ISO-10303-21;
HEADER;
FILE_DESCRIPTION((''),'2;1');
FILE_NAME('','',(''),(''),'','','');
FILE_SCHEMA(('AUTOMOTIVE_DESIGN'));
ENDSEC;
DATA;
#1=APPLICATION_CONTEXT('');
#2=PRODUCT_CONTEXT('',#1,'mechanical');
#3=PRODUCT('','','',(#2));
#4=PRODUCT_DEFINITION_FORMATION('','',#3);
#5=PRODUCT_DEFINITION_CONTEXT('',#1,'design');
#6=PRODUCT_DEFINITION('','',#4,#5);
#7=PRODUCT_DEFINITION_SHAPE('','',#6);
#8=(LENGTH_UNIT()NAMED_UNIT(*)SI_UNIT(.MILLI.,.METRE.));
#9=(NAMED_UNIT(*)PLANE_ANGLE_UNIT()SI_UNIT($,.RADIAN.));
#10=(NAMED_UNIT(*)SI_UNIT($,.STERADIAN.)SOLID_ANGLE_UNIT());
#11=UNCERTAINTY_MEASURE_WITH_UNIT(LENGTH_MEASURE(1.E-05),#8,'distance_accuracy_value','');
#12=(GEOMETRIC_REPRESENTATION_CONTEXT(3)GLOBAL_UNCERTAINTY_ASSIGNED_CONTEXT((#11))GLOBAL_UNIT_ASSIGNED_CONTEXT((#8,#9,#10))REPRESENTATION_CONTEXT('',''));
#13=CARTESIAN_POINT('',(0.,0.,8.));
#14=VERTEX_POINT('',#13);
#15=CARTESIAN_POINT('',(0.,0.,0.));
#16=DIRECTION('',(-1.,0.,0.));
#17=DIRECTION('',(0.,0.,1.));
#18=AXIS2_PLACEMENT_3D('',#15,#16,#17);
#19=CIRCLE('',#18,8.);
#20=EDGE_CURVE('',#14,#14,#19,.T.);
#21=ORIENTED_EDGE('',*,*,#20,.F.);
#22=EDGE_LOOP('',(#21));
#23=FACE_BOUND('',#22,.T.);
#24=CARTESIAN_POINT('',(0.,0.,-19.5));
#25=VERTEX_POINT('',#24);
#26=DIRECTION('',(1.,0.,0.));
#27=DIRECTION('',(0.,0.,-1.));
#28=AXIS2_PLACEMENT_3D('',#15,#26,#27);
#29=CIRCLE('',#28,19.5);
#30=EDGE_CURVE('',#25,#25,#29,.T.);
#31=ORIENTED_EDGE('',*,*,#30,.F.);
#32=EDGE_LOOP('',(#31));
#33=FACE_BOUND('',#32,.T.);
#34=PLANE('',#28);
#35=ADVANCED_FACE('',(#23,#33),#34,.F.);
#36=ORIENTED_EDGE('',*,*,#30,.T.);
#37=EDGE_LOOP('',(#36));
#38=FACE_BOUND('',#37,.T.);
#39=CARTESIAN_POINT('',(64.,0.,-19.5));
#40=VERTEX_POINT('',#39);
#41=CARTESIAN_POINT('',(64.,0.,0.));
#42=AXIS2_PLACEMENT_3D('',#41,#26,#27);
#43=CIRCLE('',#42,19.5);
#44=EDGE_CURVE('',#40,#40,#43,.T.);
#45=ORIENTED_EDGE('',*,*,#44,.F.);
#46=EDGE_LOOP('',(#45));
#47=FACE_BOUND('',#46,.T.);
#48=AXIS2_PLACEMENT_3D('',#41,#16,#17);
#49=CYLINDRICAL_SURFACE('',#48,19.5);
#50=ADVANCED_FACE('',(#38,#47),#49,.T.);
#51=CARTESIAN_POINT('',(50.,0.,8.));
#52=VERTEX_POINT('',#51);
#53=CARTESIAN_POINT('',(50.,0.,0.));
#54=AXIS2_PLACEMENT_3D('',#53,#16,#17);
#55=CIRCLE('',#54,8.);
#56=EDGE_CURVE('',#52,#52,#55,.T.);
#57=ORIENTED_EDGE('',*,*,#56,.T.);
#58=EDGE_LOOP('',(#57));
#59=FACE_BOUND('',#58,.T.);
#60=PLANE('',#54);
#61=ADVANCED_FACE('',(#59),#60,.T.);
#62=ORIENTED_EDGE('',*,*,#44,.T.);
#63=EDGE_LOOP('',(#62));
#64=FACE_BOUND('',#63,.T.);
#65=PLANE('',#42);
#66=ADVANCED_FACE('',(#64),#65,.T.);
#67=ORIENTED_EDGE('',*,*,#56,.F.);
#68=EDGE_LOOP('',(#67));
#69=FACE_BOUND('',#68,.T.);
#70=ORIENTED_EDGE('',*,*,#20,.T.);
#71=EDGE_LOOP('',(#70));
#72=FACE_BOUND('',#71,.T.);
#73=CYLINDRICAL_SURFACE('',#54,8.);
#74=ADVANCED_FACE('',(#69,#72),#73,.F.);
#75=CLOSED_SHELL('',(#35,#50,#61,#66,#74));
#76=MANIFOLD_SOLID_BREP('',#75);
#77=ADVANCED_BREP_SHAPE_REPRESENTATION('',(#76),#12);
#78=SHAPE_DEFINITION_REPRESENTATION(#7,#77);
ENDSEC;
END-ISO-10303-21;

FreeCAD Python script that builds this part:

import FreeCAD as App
import Part
import Sketcher
from FreeCAD import Vector

doc = App.newDocument("Part")
body = doc.addObject("PartDesign::Body", "Body")

sketch1 = body.newObject("Sketcher::SketchObject", "Sketch")
sketch1.AttachmentSupport = (doc.getObject("YZ_Plane"), [""])
sketch1.MapMode = "FlatFace"
sketch1.addGeometry(Part.Circle(Vector(0, 0, 0), Vector(0, 0, 1), 20), False)
sketch1.addConstraint([
    Sketcher.Constraint("Coincident", 0, 3, -1, 1),
    Sketcher.Constraint("Diameter", 0, 39.0),
])
pad1 = body.newObject("PartDesign::Pad", "Pad")
pad1.Profile = sketch1
pad1.Length = 64

sketch2 = body.newObject("Sketcher::SketchObject", "Sketch001")
sketch2.AttachmentSupport = (doc.getObject("YZ_Plane"), [""])
sketch2.MapMode = "FlatFace"
sketch2.addGeometry(Part.Circle(Vector(0, 0, 0), Vector(0, 0, 1), 8), False)
sketch2.addConstraint([
    Sketcher.Constraint("Coincident", 0, 3, -1, 1),
    Sketcher.Constraint("Diameter", 0, 16.0),
])
pocket1 = body.newObject("PartDesign::Pocket", "Pocket")
pocket1.Profile = sketch2
pocket1.Length = 50
pocket1.Reversed = True

doc.recompute()
